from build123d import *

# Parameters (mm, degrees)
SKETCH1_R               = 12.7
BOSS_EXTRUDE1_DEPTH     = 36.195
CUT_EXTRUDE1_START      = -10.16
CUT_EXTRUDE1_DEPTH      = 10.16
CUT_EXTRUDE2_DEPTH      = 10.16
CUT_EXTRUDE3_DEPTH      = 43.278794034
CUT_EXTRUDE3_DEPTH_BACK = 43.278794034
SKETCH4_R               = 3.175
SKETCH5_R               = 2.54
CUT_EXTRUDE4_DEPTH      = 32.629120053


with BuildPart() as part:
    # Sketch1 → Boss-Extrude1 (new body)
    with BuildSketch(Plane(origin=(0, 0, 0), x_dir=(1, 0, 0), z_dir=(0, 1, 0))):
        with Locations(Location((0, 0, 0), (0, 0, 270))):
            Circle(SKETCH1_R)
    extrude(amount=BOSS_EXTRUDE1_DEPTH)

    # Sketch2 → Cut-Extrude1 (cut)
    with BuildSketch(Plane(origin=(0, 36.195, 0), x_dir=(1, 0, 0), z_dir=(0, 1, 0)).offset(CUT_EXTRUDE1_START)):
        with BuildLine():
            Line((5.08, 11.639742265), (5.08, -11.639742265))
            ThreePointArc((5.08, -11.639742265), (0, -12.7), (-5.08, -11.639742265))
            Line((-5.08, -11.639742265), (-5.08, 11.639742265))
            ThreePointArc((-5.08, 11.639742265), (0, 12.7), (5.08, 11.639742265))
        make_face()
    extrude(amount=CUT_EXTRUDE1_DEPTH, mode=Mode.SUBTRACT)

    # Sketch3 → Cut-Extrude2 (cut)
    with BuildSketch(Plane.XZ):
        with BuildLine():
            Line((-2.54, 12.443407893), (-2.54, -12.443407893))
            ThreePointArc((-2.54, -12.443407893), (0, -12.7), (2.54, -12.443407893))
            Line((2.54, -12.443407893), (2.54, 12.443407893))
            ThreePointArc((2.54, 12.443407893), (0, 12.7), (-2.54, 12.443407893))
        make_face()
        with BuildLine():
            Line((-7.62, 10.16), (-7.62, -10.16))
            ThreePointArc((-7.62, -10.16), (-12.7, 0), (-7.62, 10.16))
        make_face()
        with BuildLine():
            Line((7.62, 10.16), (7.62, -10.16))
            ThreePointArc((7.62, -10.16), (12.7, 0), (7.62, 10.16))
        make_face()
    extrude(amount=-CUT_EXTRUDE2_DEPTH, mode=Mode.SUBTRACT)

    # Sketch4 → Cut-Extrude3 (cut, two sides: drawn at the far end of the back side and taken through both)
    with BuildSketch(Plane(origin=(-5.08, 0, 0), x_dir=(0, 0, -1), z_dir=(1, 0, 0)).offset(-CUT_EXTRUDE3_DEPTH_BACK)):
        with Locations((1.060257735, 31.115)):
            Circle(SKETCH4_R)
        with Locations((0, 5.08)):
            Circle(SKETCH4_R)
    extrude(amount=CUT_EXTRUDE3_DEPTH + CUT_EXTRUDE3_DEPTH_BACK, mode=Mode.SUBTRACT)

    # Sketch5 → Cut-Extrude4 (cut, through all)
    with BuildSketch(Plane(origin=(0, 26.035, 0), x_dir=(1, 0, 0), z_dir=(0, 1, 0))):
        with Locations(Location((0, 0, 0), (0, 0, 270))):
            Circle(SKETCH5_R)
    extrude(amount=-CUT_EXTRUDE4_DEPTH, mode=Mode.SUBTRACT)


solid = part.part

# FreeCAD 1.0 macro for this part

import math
import FreeCAD as App
import Part
import Sketcher
from FreeCAD import Vector
Q = App.Units.Quantity

doc = App.newDocument("Part")
body = doc.addObject("PartDesign::Body", "Body")

# Sketch on XZ plane
sketch1 = doc.addObject("Sketcher::SketchObject", "Sketch")
body.addObject(sketch1)
sketch1.AttachmentSupport = (doc.XZ_Plane, [""])
sketch1.MapMode = "FlatFace"
sketch1.addGeometry(Part.Circle(Vector(0, 0, 0), Vector(0, 0, 1), 13), False)
sketch1.addConstraint([
    Sketcher.Constraint("Coincident", 0, 3, -1, 1),
    Sketcher.Constraint("Diameter", 0, Q("1 in")),
])
pad1 = doc.addObject("PartDesign::Pad", "Pad")
body.addObject(pad1)
pad1.Profile = sketch1
pad1.Length = Q("1.425 in")
pad1.Reversed = True

# Sketch on XZ plane
sketch2 = doc.addObject("Sketcher::SketchObject", "Sketch001")
body.addObject(sketch2)
sketch2.AttachmentSupport = (doc.XZ_Plane, [""])
sketch2.MapMode = "FlatFace"
sketch2.AttachmentOffset = App.Placement(Vector(0, 0, -1.025 * 25.4), App.Rotation())
sketch2.addGeometry([
    Part.LineSegment(Vector(5, 12, 0), Vector(5, -12, 0)),
    Part.ArcOfCircle(Part.Circle(Vector(0, 0, 0), Vector(0, 0, 1), 13), math.radians(-114), math.radians(-66)),
    Part.LineSegment(Vector(-5, -12, 0), Vector(-5, 12, 0)),
    Part.ArcOfCircle(Part.Circle(Vector(0, 0, 0), Vector(0, 0, 1), 13), math.radians(66), math.radians(114)),
], False)
sketch2.addConstraint([
    Sketcher.Constraint("Coincident", 0, 2, 1, 2),
    Sketcher.Constraint("Coincident", 1, 1, 2, 1),
    Sketcher.Constraint("Coincident", 2, 2, 3, 2),
    Sketcher.Constraint("Coincident", 3, 1, 0, 1),
    Sketcher.Constraint("Vertical", 0),
    Sketcher.Constraint("Vertical", 2),
    Sketcher.Constraint("Coincident", 1, 3, -1, 1),
    Sketcher.Constraint("Coincident", 3, 3, -1, 1),
    Sketcher.Constraint("Equal", 1, 3),
    Sketcher.Constraint("Horizontal", 0, 2, 1, 1),
    Sketcher.Constraint("Radius", 1, Q("0.5 in")),
    Sketcher.Constraint("DistanceX", -1, 1, 0, 2, Q("0.2 in")),
])
pocket1 = doc.addObject("PartDesign::Pocket", "Pocket")
body.addObject(pocket1)
pocket1.Profile = sketch2
pocket1.Length = Q("0.4 in")

# Sketch on XZ plane
sketch3 = doc.addObject("Sketcher::SketchObject", "Sketch002")
body.addObject(sketch3)
sketch3.AttachmentSupport = (doc.XZ_Plane, [""])
sketch3.MapMode = "FlatFace"
sketch3.addGeometry([
    Part.LineSegment(Vector(-3, 12, 0), Vector(-3, -12, 0)),  # 0
    Part.ArcOfCircle(Part.Circle(Vector(0, 0, 0), Vector(0, 0, 1), 13), math.radians(-102), math.radians(-78)),  # 1
    Part.LineSegment(Vector(3, -12, 0), Vector(3, 12, 0)),  # 2
    Part.ArcOfCircle(Part.Circle(Vector(0, 0, 0), Vector(0, 0, 1), 13), math.radians(78), math.radians(102)),  # 3
    Part.LineSegment(Vector(-8, -10, 0), Vector(-8, 10, 0)),  # 4
    Part.ArcOfCircle(Part.Circle(Vector(0, 0, 0), Vector(0, 0, 1), 13), math.radians(127), math.radians(233)),  # 5
    Part.LineSegment(Vector(8, 10, 0), Vector(8, -10, 0)),  # 6
    Part.ArcOfCircle(Part.Circle(Vector(0, 0, 0), Vector(0, 0, 1), 13), math.radians(-53), math.radians(53)),  # 7
], False)
sketch3.addConstraint([
    Sketcher.Constraint("Coincident", 0, 2, 1, 1),
    Sketcher.Constraint("Coincident", 1, 2, 2, 1),
    Sketcher.Constraint("Coincident", 2, 2, 3, 1),
    Sketcher.Constraint("Coincident", 3, 2, 0, 1),
    Sketcher.Constraint("Coincident", 4, 1, 5, 2),
    Sketcher.Constraint("Coincident", 5, 1, 4, 2),
    Sketcher.Constraint("Coincident", 6, 1, 7, 2),
    Sketcher.Constraint("Coincident", 7, 1, 6, 2),
    Sketcher.Constraint("Vertical", 0),
    Sketcher.Constraint("Vertical", 2),
    Sketcher.Constraint("Vertical", 4),
    Sketcher.Constraint("Vertical", 6),
    Sketcher.Constraint("Coincident", 1, 3, -1, 1),
    Sketcher.Constraint("Coincident", 3, 3, -1, 1),
    Sketcher.Constraint("Coincident", 5, 3, -1, 1),
    Sketcher.Constraint("Coincident", 7, 3, -1, 1),
    Sketcher.Constraint("Equal", 1, 3),
    Sketcher.Constraint("Equal", 3, 5),
    Sketcher.Constraint("Equal", 5, 7),
    Sketcher.Constraint("Horizontal", 0, 2, 1, 2),
    Sketcher.Constraint("Horizontal", 5, 1, 6, 1),
    Sketcher.Constraint("Radius", 1, Q("0.5 in")),
    Sketcher.Constraint("DistanceY", 4, 1, 4, 2, Q("0.8 in")),
    Sketcher.Constraint("DistanceX", 0, 2, -1, 1, Q("0.1 in")),
])
pocket2 = doc.addObject("PartDesign::Pocket", "Pocket001")
body.addObject(pocket2)
pocket2.Profile = sketch3
pocket2.Length = Q("0.4 in")

# Sketch on YZ plane
sketch4 = doc.addObject("Sketcher::SketchObject", "Sketch003")
body.addObject(sketch4)
sketch4.AttachmentSupport = (doc.YZ_Plane, [""])
sketch4.MapMode = "FlatFace"
sketch4.AttachmentOffset = App.Placement(Vector(0, 0, -0.2 * 25.4), App.Rotation())
sketch4.addGeometry([
    Part.Circle(Vector(31.1, -1.1, 0), Vector(0, 0, 1), 3.2),
    Part.Circle(Vector(5.1, 0, 0), Vector(0, 0, 1), 3.2),
], False)
sketch4.addConstraint([
    Sketcher.Constraint("Equal", 0, 1),
    Sketcher.Constraint("PointOnObject", 1, 3, -1),
    Sketcher.Constraint("Diameter", 0, Q("0.25 in")),
    Sketcher.Constraint("DistanceX", -1, 1, 1, 3, Q("0.2 in")),
    Sketcher.Constraint("DistanceX", -1, 1, 0, 3, Q("1.225 in")),
    Sketcher.Constraint("DistanceY", 0, 3, -1, 1, Q("1.060258 mm")),
])
pocket3 = doc.addObject("PartDesign::Pocket", "Pocket002")
body.addObject(pocket3)
pocket3.Profile = sketch4
pocket3.Type = "ThroughAll"
pocket3.Midplane = True

# Sketch on XZ plane
sketch5 = doc.addObject("Sketcher::SketchObject", "Sketch004")
body.addObject(sketch5)
sketch5.AttachmentSupport = (doc.XZ_Plane, [""])
sketch5.MapMode = "FlatFace"
sketch5.AttachmentOffset = App.Placement(Vector(0, 0, -1.025 * 25.4), App.Rotation())
sketch5.addGeometry(Part.Circle(Vector(0, 0, 0), Vector(0, 0, 1), 2.5), False)
sketch5.addConstraint([
    Sketcher.Constraint("Coincident", 0, 3, -1, 1),
    Sketcher.Constraint("Diameter", 0, Q("0.2 in")),
])
pocket4 = doc.addObject("PartDesign::Pocket", "Pocket003")
body.addObject(pocket4)
pocket4.Profile = sketch5
pocket4.Type = "ThroughAll"
pocket4.Reversed = True

doc.recompute()
